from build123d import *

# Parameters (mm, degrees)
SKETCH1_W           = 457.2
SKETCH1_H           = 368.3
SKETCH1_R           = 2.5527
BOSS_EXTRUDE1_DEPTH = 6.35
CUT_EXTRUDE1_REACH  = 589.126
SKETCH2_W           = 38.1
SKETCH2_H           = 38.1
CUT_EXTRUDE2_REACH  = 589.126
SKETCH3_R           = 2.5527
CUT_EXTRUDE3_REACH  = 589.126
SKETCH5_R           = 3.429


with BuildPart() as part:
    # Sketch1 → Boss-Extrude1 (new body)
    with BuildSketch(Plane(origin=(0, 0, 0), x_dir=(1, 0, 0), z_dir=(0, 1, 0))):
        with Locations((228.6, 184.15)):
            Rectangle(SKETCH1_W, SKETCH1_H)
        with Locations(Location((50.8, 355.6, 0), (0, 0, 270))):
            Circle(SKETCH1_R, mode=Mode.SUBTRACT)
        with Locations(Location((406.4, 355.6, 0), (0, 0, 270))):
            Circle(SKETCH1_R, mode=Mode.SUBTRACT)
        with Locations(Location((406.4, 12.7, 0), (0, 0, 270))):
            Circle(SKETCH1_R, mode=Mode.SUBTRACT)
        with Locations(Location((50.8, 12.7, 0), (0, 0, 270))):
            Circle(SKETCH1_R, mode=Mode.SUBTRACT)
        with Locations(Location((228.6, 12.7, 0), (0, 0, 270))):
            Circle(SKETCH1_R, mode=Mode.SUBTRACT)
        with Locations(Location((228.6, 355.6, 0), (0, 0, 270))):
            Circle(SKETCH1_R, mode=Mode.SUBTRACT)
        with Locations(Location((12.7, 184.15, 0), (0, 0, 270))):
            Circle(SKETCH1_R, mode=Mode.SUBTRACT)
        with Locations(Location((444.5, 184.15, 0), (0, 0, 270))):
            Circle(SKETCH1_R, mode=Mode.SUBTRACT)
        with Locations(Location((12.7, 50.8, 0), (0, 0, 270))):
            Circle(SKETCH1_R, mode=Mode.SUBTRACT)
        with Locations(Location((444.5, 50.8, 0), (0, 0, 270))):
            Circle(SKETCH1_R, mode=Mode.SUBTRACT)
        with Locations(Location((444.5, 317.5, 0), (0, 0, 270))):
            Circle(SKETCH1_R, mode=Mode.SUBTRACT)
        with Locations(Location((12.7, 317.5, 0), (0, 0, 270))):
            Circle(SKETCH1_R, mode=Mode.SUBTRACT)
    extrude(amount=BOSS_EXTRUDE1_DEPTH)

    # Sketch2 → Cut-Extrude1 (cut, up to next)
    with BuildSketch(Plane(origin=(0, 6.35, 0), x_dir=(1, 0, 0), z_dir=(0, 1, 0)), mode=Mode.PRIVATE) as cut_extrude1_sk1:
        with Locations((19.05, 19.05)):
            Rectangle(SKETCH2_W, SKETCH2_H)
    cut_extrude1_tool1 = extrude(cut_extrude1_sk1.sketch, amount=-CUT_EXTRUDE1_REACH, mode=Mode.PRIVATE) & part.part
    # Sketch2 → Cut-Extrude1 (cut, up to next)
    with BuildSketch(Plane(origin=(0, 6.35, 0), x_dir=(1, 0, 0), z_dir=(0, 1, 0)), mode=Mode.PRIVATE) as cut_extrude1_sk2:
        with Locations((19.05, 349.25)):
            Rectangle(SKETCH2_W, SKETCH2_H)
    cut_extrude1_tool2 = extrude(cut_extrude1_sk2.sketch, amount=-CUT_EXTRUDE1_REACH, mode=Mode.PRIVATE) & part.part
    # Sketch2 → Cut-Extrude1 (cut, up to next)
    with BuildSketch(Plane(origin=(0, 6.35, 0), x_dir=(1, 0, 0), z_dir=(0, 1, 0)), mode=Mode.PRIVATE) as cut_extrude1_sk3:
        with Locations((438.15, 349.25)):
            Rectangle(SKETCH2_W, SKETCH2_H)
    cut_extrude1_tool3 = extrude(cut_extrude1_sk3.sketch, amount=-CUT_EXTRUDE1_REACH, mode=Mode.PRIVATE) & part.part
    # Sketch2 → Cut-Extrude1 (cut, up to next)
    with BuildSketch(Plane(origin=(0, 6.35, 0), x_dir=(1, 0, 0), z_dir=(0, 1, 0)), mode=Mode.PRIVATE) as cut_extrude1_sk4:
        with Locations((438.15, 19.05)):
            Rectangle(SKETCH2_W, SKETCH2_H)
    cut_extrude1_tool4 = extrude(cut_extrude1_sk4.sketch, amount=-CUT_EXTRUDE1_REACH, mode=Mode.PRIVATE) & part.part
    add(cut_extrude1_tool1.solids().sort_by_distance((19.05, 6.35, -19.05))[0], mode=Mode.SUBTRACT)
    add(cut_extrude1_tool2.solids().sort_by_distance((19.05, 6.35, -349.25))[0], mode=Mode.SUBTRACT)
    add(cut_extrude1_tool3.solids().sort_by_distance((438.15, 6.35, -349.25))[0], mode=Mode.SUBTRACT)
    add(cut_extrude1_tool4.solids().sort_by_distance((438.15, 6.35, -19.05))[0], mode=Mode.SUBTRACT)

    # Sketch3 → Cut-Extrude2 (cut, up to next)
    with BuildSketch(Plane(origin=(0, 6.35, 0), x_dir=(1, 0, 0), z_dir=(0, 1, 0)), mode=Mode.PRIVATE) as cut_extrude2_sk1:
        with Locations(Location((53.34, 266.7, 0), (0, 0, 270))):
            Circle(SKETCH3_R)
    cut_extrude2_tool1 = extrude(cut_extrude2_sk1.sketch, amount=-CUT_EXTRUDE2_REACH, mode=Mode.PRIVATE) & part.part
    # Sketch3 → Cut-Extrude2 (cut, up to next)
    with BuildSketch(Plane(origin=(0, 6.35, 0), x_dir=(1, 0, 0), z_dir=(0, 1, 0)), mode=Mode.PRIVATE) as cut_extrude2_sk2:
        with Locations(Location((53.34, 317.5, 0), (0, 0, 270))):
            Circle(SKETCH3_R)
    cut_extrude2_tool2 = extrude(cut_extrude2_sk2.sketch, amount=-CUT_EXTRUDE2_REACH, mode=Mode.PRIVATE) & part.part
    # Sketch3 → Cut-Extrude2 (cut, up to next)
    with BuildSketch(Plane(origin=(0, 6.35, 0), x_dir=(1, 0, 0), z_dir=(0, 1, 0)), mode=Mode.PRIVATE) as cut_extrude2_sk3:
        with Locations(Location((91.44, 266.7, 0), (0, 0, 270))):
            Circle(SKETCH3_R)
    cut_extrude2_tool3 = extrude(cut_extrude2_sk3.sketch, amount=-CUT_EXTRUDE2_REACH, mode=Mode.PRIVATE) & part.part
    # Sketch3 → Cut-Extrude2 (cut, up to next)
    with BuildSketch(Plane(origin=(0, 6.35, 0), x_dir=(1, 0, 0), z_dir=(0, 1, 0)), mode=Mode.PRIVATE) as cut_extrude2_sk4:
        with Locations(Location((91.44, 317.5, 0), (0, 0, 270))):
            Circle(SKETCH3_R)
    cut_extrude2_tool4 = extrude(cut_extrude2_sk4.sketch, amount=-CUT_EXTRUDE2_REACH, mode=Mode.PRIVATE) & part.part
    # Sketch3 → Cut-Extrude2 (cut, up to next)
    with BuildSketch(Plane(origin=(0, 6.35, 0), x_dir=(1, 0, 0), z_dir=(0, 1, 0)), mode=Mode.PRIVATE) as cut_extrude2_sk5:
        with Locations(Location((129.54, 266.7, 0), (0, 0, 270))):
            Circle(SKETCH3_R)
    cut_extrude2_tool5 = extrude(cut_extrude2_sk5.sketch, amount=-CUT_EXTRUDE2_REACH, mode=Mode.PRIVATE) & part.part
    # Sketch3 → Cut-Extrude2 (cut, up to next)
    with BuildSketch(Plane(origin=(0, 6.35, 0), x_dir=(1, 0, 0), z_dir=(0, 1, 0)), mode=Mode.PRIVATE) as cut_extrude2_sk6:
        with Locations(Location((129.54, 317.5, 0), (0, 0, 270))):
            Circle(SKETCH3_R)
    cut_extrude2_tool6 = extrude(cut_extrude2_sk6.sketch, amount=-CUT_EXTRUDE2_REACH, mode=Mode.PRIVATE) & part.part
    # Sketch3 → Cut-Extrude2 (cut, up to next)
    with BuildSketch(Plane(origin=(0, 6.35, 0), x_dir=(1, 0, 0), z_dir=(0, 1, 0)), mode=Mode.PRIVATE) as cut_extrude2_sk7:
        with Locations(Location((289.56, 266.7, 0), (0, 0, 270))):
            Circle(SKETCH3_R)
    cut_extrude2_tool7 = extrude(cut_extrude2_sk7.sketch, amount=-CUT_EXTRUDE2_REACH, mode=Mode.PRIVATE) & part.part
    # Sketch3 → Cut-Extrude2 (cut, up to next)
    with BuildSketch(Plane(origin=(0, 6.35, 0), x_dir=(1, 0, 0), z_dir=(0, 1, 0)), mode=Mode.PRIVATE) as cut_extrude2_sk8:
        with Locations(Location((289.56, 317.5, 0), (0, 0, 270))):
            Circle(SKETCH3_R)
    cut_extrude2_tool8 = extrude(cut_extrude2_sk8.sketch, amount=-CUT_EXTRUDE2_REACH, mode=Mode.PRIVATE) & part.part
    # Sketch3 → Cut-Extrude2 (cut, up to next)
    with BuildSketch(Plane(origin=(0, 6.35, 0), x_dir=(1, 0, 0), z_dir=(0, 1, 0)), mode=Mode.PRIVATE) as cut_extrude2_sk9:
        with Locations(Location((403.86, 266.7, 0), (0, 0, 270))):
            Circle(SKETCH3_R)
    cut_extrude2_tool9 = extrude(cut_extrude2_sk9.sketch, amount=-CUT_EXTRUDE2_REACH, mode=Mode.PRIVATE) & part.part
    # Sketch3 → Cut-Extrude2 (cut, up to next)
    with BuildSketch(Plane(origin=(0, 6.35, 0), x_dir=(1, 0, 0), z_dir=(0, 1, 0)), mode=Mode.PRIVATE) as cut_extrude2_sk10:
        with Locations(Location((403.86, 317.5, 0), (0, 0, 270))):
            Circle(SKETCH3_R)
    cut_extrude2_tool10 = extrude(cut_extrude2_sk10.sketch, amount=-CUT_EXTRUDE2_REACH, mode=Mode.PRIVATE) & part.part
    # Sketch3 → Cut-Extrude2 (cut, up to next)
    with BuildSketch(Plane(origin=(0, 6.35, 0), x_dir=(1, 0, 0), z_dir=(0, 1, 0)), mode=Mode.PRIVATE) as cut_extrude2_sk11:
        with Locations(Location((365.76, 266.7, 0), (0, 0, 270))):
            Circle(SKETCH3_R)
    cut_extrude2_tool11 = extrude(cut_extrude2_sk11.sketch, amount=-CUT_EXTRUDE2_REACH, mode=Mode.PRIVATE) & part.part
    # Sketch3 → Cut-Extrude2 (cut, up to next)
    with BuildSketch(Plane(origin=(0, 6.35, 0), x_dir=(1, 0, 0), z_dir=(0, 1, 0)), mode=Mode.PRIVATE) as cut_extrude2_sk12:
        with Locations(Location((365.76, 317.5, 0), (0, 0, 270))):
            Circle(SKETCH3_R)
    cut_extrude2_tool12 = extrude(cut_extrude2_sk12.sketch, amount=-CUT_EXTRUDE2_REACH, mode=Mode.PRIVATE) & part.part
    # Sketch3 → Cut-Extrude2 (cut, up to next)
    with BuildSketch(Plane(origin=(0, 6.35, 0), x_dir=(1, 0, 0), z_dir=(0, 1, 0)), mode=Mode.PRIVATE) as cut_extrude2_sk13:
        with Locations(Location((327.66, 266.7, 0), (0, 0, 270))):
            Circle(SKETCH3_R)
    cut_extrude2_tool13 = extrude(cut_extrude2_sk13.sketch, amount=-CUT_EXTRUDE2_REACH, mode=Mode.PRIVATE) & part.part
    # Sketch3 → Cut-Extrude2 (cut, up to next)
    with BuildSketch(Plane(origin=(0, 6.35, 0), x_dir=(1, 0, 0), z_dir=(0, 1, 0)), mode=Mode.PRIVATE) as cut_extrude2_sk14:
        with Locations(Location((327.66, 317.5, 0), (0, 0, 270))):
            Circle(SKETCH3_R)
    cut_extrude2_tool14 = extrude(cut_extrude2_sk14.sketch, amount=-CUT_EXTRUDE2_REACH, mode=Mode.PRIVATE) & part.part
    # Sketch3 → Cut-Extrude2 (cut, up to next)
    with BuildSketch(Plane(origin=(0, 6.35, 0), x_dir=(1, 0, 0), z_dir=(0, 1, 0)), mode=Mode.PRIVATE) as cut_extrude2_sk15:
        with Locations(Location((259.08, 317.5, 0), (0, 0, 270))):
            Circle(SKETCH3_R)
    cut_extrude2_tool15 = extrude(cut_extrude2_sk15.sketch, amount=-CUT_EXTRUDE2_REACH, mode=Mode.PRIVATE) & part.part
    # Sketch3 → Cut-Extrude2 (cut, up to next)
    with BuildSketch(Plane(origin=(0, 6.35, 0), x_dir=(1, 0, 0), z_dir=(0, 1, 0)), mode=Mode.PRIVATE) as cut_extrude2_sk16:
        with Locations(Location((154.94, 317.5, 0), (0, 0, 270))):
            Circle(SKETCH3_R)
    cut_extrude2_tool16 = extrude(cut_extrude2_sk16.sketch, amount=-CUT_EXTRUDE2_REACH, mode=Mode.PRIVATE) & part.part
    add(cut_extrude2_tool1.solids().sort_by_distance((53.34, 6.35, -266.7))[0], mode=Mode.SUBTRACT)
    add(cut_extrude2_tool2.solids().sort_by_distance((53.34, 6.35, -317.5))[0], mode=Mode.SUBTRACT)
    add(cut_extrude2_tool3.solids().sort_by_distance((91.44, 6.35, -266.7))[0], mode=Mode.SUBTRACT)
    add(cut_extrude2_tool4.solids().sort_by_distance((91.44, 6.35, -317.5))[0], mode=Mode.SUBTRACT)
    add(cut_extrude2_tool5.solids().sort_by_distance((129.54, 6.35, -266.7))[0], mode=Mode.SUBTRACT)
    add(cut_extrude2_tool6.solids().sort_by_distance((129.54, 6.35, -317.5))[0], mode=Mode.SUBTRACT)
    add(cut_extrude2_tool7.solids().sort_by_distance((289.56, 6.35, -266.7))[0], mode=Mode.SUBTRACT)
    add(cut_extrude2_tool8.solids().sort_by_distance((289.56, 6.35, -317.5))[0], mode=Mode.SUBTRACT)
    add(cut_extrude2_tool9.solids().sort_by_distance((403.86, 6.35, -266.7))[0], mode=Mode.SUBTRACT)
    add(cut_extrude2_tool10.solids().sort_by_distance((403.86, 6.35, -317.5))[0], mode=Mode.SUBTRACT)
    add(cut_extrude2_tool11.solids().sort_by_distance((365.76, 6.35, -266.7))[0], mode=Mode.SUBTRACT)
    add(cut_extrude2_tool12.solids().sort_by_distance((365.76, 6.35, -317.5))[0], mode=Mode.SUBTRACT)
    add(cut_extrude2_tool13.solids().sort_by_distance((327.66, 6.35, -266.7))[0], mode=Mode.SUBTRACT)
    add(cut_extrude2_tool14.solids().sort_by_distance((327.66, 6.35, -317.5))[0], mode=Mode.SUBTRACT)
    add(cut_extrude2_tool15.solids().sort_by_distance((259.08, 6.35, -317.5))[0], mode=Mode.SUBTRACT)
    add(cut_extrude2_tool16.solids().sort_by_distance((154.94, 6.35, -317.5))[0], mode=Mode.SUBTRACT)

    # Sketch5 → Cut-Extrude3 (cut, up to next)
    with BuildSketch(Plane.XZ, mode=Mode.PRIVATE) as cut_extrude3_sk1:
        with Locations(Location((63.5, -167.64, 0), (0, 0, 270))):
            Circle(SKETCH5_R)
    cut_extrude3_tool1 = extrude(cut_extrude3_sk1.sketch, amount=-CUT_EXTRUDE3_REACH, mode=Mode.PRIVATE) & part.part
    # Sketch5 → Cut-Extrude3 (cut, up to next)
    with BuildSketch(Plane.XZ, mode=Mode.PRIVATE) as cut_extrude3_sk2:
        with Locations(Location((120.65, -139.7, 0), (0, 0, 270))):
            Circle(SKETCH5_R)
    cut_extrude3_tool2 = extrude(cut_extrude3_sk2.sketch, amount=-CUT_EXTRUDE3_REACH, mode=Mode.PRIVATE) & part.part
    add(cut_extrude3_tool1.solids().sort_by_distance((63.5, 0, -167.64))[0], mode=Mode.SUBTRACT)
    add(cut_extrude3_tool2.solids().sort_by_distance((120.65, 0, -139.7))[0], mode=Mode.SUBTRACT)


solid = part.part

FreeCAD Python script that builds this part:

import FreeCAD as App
import Part
import Sketcher
Q = App.Units.Quantity

doc = App.newDocument("Part")
params = doc.addObject("Spreadsheet::Sheet", "Params")
for row, (alias, value) in enumerate([
    ("sketch1_width", "18 in"),
    ("sketch1_diameter", "0.201 in"),
    ("sketch1_height", "14.5 in"),
    ("pad1_length", "0.25 in"),
    ("sketch2_width", "1.5 in"),
    ("sketch3_width", "1.5 in"),
    ("sketch4_width", "1.5 in"),
    ("sketch5_width", "1.5 in"),
    ("sketch6_diameter", "0.201 in"),
    ("sketch7_diameter", "0.201 in"),
    ("sketch8_diameter", "0.201 in"),
    ("sketch9_diameter", "0.201 in"),
    ("sketch10_diameter", "0.201 in"),
    ("sketch11_diameter", "0.201 in"),
    ("sketch12_diameter", "0.201 in"),
    ("sketch13_diameter", "0.201 in"),
    ("sketch14_diameter", "0.201 in"),
    ("sketch15_diameter", "0.201 in"),
    ("sketch16_diameter", "0.201 in"),
    ("sketch17_diameter", "0.201 in"),
    ("sketch18_diameter", "0.201 in"),
    ("sketch19_diameter", "0.201 in"),
    ("sketch20_diameter", "0.201 in"),
    ("sketch21_diameter", "0.201 in"),
    ("sketch22_diameter", "0.27 in"),
    ("sketch23_diameter", "0.27 in"),
], start=1):
    params.set(f"A{row}", alias)
    params.set(f"B{row}", "=" + value)
    params.setAlias(f"B{row}", alias)

body = doc.addObject("PartDesign::Body", "Body")

sketch1 = body.newObject("Sketcher::SketchObject", "Sketch")
sketch1.AttachmentSupport = (doc.getObject("XZ_Plane"), [""])
sketch1.MapMode = "FlatFace"
sketch1.addGeometry(Part.LineSegment(App.Vector(0, -368.3, 0), App.Vector(0, 0, 0)), False)
sketch1.addGeometry(Part.LineSegment(App.Vector(0, 0, 0), App.Vector(457.2, 0, 0)), False)
sketch1.addGeometry(Part.LineSegment(App.Vector(457.2, 0, 0), App.Vector(457.2, -368.3, 0)), False)
sketch1.addGeometry(Part.LineSegment(App.Vector(457.2, -368.3, 0), App.Vector(0, -368.3, 0)), False)
sketch1.addGeometry(Part.Circle(App.Vector(50.8, -12.7, 0), App.Vector(0, 0, 1), 2.6), False)
sketch1.addGeometry(Part.Circle(App.Vector(12.7, -50.8, 0), App.Vector(0, 0, 1), 2.6), False)
sketch1.addGeometry(Part.Circle(App.Vector(12.7, -184.2, 0), App.Vector(0, 0, 1), 2.6), False)
sketch1.addGeometry(Part.Circle(App.Vector(228.6, -12.7, 0), App.Vector(0, 0, 1), 2.6), False)
sketch1.addGeometry(Part.Circle(App.Vector(406.4, -12.7, 0), App.Vector(0, 0, 1), 2.6), False)
sketch1.addGeometry(Part.Circle(App.Vector(444.5, -50.8, 0), App.Vector(0, 0, 1), 2.6), False)
sketch1.addGeometry(Part.Circle(App.Vector(444.5, -184.2, 0), App.Vector(0, 0, 1), 2.6), False)
sketch1.addGeometry(Part.Circle(App.Vector(12.7, -317.5, 0), App.Vector(0, 0, 1), 2.6), False)
sketch1.addGeometry(Part.Circle(App.Vector(50.8, -355.6, 0), App.Vector(0, 0, 1), 2.6), False)
sketch1.addGeometry(Part.Circle(App.Vector(228.6, -355.6, 0), App.Vector(0, 0, 1), 2.6), False)
sketch1.addGeometry(Part.Circle(App.Vector(444.5, -317.5, 0), App.Vector(0, 0, 1), 2.6), False)
sketch1.addGeometry(Part.Circle(App.Vector(406.4, -355.6, 0), App.Vector(0, 0, 1), 2.6), False)
sketch1.addConstraint(Sketcher.Constraint("Coincident", 0, 2, 1, 1))
sketch1.addConstraint(Sketcher.Constraint("Coincident", 1, 2, 2, 1))
sketch1.addConstraint(Sketcher.Constraint("Coincident", 2, 2, 3, 1))
sketch1.addConstraint(Sketcher.Constraint("Coincident", 3, 2, 0, 1))
sketch1.addConstraint(Sketcher.Constraint("Vertical", 0))
sketch1.addConstraint(Sketcher.Constraint("Horizontal", 1))
sketch1.addConstraint(Sketcher.Constraint("Vertical", 2))
sketch1.addConstraint(Sketcher.Constraint("Horizontal", 3))
sketch1.addConstraint(Sketcher.Constraint("Coincident", 0, 2, -1, 1))
sketch1.addConstraint(Sketcher.Constraint("Equal", 4, 5))
sketch1.addConstraint(Sketcher.Constraint("Equal", 5, 6))
sketch1.addConstraint(Sketcher.Constraint("Equal", 6, 7))
sketch1.addConstraint(Sketcher.Constraint("Equal", 7, 8))
sketch1.addConstraint(Sketcher.Constraint("Equal", 8, 9))
sketch1.addConstraint(Sketcher.Constraint("Equal", 9, 10))
sketch1.addConstraint(Sketcher.Constraint("Equal", 10, 11))
sketch1.addConstraint(Sketcher.Constraint("Equal", 11, 12))
sketch1.addConstraint(Sketcher.Constraint("Equal", 12, 13))
sketch1.addConstraint(Sketcher.Constraint("Equal", 13, 14))
sketch1.addConstraint(Sketcher.Constraint("Equal", 14, 15))
sketch1.addConstraint(Sketcher.Constraint("Horizontal", 4, 3, 7, 3))
sketch1.addConstraint(Sketcher.Constraint("Horizontal", 7, 3, 8, 3))
sketch1.addConstraint(Sketcher.Constraint("Horizontal", 5, 3, 9, 3))
sketch1.addConstraint(Sketcher.Constraint("Horizontal", 6, 3, 10, 3))
sketch1.addConstraint(Sketcher.Constraint("Horizontal", 12, 3, 13, 3))
sketch1.addConstraint(Sketcher.Constraint("Horizontal", 11, 3, 14, 3))
sketch1.addConstraint(Sketcher.Constraint("Horizontal", 13, 3, 15, 3))
sketch1.addConstraint(Sketcher.Constraint("Vertical", 5, 3, 6, 3))
sketch1.addConstraint(Sketcher.Constraint("Vertical", 9, 3, 10, 3))
sketch1.addConstraint(Sketcher.Constraint("Vertical", 6, 3, 11, 3))
sketch1.addConstraint(Sketcher.Constraint("Vertical", 4, 3, 12, 3))
sketch1.addConstraint(Sketcher.Constraint("Vertical", 7, 3, 13, 3))
sketch1.addConstraint(Sketcher.Constraint("Vertical", 10, 3, 14, 3))
sketch1.addConstraint(Sketcher.Constraint("Vertical", 8, 3, 15, 3))
sketch1.addConstraint(Sketcher.Constraint("DistanceX", 1, 1, 1, 2, Q("18 in")))
sketch1.addConstraint(Sketcher.Constraint("Diameter", 4, Q("0.201 in")))
sketch1.addConstraint(Sketcher.Constraint("DistanceY", 0, 1, 0, 2, Q("14.5 in")))
sketch1.addConstraint(Sketcher.Constraint("DistanceX", -1, 1, 4, 3, Q("2 in")))
sketch1.addConstraint(Sketcher.Constraint("DistanceY", 5, 3, -1, 1, Q("2 in")))
sketch1.addConstraint(Sketcher.Constraint("DistanceX", -1, 1, 7, 3, Q("9 in")))
sketch1.addConstraint(Sketcher.Constraint("DistanceX", -1, 1, 8, 3, Q("16 in")))
sketch1.addConstraint(Sketcher.Constraint("DistanceY", 12, 3, -1, 1, Q("14 in")))
sketch1.addConstraint(Sketcher.Constraint("DistanceX", 5, 3, 9, 3, Q("17 in")))
sketch1.addConstraint(Sketcher.Constraint("DistanceY", 11, 3, 4, 3, Q("12 in")))
sketch1.addConstraint(Sketcher.Constraint("DistanceY", 2, 2, 14, 3, Q("2 in")))
sketch1.addConstraint(Sketcher.Constraint("DistanceX", -1, 1, 5, 3, Q("0.5 in")))
sketch1.addConstraint(Sketcher.Constraint("DistanceY", 6, 3, -1, 1, Q("7.25 in")))
sketch1.setExpression("Constraints[34]", "Params.sketch1_width")
sketch1.setExpression("Constraints[35]", "Params.sketch1_diameter")
sketch1.setExpression("Constraints[36]", "Params.sketch1_height")
pad1 = body.newObject("PartDesign::Pad", "Pad")
pad1.Profile = sketch1
pad1.setExpression("Length", "Params.pad1_length")
pad1.Reversed = True

sketch2 = body.newObject("Sketcher::SketchObject", "Sketch001")
sketch2.AttachmentSupport = (doc.getObject("XZ_Plane"), [""])
sketch2.MapMode = "FlatFace"
sketch2.AttachmentOffset = App.Placement(App.Vector(0, 0, -0.25 * 25.4), App.Rotation())
sketch2.addGeometry(Part.LineSegment(App.Vector(0, -38, 0), App.Vector(0, 0, 0)), False)
sketch2.addGeometry(Part.LineSegment(App.Vector(0, 0, 0), App.Vector(38, 0, 0)), False)
sketch2.addGeometry(Part.LineSegment(App.Vector(38, 0, 0), App.Vector(38, -38, 0)), False)
sketch2.addGeometry(Part.LineSegment(App.Vector(38, -38, 0), App.Vector(0, -38, 0)), False)
sketch2.addConstraint(Sketcher.Constraint("Coincident", 0, 2, 1, 1))
sketch2.addConstraint(Sketcher.Constraint("Coincident", 1, 2, 2, 1))
sketch2.addConstraint(Sketcher.Constraint("Coincident", 2, 2, 3, 1))
sketch2.addConstraint(Sketcher.Constraint("Coincident", 3, 2, 0, 1))
sketch2.addConstraint(Sketcher.Constraint("Vertical", 0))
sketch2.addConstraint(Sketcher.Constraint("Horizontal", 1))
sketch2.addConstraint(Sketcher.Constraint("Vertical", 2))
sketch2.addConstraint(Sketcher.Constraint("Horizontal", 3))
sketch2.addConstraint(Sketcher.Constraint("Coincident", 0, 2, -1, 1))
sketch2.addConstraint(Sketcher.Constraint("Equal", 3, 0))
sketch2.addConstraint(Sketcher.Constraint("DistanceX", 1, 1, 1, 2, Q("1.5 in")))
sketch2.setExpression("Constraints[10]", "Params.sketch2_width")
pocket1 = body.newObject("PartDesign::Pocket", "Pocket")
pocket1.Profile = sketch2
pocket1.Type = "UpToFirst"
pocket1.Reversed = True

sketch3 = body.newObject("Sketcher::SketchObject", "Sketch002")
sketch3.AttachmentSupport = (doc.getObject("XZ_Plane"), [""])
sketch3.MapMode = "FlatFace"
sketch3.AttachmentOffset = App.Placement(App.Vector(0, 0, -0.25 * 25.4), App.Rotation())
sketch3.addGeometry(Part.LineSegment(App.Vector(0, -368, 0), App.Vector(0, -330, 0)), False)
sketch3.addGeometry(Part.LineSegment(App.Vector(0, -330, 0), App.Vector(38, -330, 0)), False)
sketch3.addGeometry(Part.LineSegment(App.Vector(38, -330, 0), App.Vector(38, -368, 0)), False)
sketch3.addGeometry(Part.LineSegment(App.Vector(38, -368, 0), App.Vector(0, -368, 0)), False)
sketch3.addConstraint(Sketcher.Constraint("Coincident", 0, 2, 1, 1))
sketch3.addConstraint(Sketcher.Constraint("Coincident", 1, 2, 2, 1))
sketch3.addConstraint(Sketcher.Constraint("Coincident", 2, 2, 3, 1))
sketch3.addConstraint(Sketcher.Constraint("Coincident", 3, 2, 0, 1))
sketch3.addConstraint(Sketcher.Constraint("Vertical", 0))
sketch3.addConstraint(Sketcher.Constraint("Horizontal", 1))
sketch3.addConstraint(Sketcher.Constraint("Vertical", 2))
sketch3.addConstraint(Sketcher.Constraint("Horizontal", 3))
sketch3.addConstraint(Sketcher.Constraint("PointOnObject", 0, 2, -2))
sketch3.addConstraint(Sketcher.Constraint("Equal", 3, 0))
sketch3.addConstraint(Sketcher.Constraint("DistanceX", 1, 1, 1, 2, Q("1.5 in")))
sketch3.addConstraint(Sketcher.Constraint("DistanceY", 0, 2, -1, 1, Q("13 in")))
sketch3.setExpression("Constraints[10]", "Params.sketch3_width")
pocket2 = body.newObject("PartDesign::Pocket", "Pocket001")
pocket2.Profile = sketch3
pocket2.Type = "UpToFirst"
pocket2.Reversed = True

sketch4 = body.newObject("Sketcher::SketchObject", "Sketch003")
sketch4.AttachmentSupport = (doc.getObject("XZ_Plane"), [""])
sketch4.MapMode = "FlatFace"
sketch4.AttachmentOffset = App.Placement(App.Vector(0, 0, -0.25 * 25.4), App.Rotation())
sketch4.addGeometry(Part.LineSegment(App.Vector(419, -368, 0), App.Vector(419, -330, 0)), False)
sketch4.addGeometry(Part.LineSegment(App.Vector(419, -330, 0), App.Vector(457, -330, 0)), False)
sketch4.addGeometry(Part.LineSegment(App.Vector(457, -330, 0), App.Vector(457, -368, 0)), False)
sketch4.addGeometry(Part.LineSegment(App.Vector(457, -368, 0), App.Vector(419, -368, 0)), False)
sketch4.addConstraint(Sketcher.Constraint("Coincident", 0, 2, 1, 1))
sketch4.addConstraint(Sketcher.Constraint("Coincident", 1, 2, 2, 1))
sketch4.addConstraint(Sketcher.Constraint("Coincident", 2, 2, 3, 1))
sketch4.addConstraint(Sketcher.Constraint("Coincident", 3, 2, 0, 1))
sketch4.addConstraint(Sketcher.Constraint("Vertical", 0))
sketch4.addConstraint(Sketcher.Constraint("Horizontal", 1))
sketch4.addConstraint(Sketcher.Constraint("Vertical", 2))
sketch4.addConstraint(Sketcher.Constraint("Horizontal", 3))
sketch4.addConstraint(Sketcher.Constraint("Equal", 3, 0))
sketch4.addConstraint(Sketcher.Constraint("DistanceX", 1, 1, 1, 2, Q("1.5 in")))
sketch4.addConstraint(Sketcher.Constraint("DistanceY", 0, 2, -1, 1, Q("13 in")))
sketch4.addConstraint(Sketcher.Constraint("DistanceX", -1, 1, 1, 2, Q("18 in")))
sketch4.setExpression("Constraints[9]", "Params.sketch4_width")
pocket3 = body.newObject("PartDesign::Pocket", "Pocket002")
pocket3.Profile = sketch4
pocket3.Type = "UpToFirst"
pocket3.Reversed = True

sketch5 = body.newObject("Sketcher::SketchObject", "Sketch004")
sketch5.AttachmentSupport = (doc.getObject("XZ_Plane"), [""])
sketch5.MapMode = "FlatFace"
sketch5.AttachmentOffset = App.Placement(App.Vector(0, 0, -0.25 * 25.4), App.Rotation())
sketch5.addGeometry(Part.LineSegment(App.Vector(419, -38, 0), App.Vector(419, 0, 0)), False)
sketch5.addGeometry(Part.LineSegment(App.Vector(419, 0, 0), App.Vector(457, 0, 0)), False)
sketch5.addGeometry(Part.LineSegment(App.Vector(457, 0, 0), App.Vector(457, -38, 0)), False)
sketch5.addGeometry(Part.LineSegment(App.Vector(457, -38, 0), App.Vector(419, -38, 0)), False)
sketch5.addConstraint(Sketcher.Constraint("Coincident", 0, 2, 1, 1))
sketch5.addConstraint(Sketcher.Constraint("Coincident", 1, 2, 2, 1))
sketch5.addConstraint(Sketcher.Constraint("Coincident", 2, 2, 3, 1))
sketch5.addConstraint(Sketcher.Constraint("Coincident", 3, 2, 0, 1))
sketch5.addConstraint(Sketcher.Constraint("Vertical", 0))
sketch5.addConstraint(Sketcher.Constraint("Horizontal", 1))
sketch5.addConstraint(Sketcher.Constraint("Vertical", 2))
sketch5.addConstraint(Sketcher.Constraint("Horizontal", 3))
sketch5.addConstraint(Sketcher.Constraint("PointOnObject", 0, 2, -1))
sketch5.addConstraint(Sketcher.Constraint("Equal", 3, 0))
sketch5.addConstraint(Sketcher.Constraint("DistanceX", 1, 1, 1, 2, Q("1.5 in")))
sketch5.addConstraint(Sketcher.Constraint("DistanceX", -1, 1, 1, 2, Q("18 in")))
sketch5.setExpression("Constraints[10]", "Params.sketch5_width")
pocket4 = body.newObject("PartDesign::Pocket", "Pocket003")
pocket4.Profile = sketch5
pocket4.Type = "UpToFirst"
pocket4.Reversed = True

sketch6 = body.newObject("Sketcher::SketchObject", "Sketch005")
sketch6.AttachmentSupport = (doc.getObject("XZ_Plane"), [""])
sketch6.MapMode = "FlatFace"
sketch6.AttachmentOffset = App.Placement(App.Vector(0, 0, -0.25 * 25.4), App.Rotation())
sketch6.addGeometry(Part.Circle(App.Vector(53.3, -266.7, 0), App.Vector(0, 0, 1), 2.6), False)
sketch6.addConstraint(Sketcher.Constraint("Diameter", 0, Q("0.201 in")))
sketch6.addConstraint(Sketcher.Constraint("DistanceX", -1, 1, 0, 3, Q("2.1 in")))
sketch6.addConstraint(Sketcher.Constraint("DistanceY", 0, 3, -1, 1, Q("10.5 in")))
sketch6.setExpression("Constraints[0]", "Params.sketch6_diameter")
pocket5 = body.newObject("PartDesign::Pocket", "Pocket004")
pocket5.Profile = sketch6
pocket5.Type = "UpToFirst"
pocket5.Reversed = True

sketch7 = body.newObject("Sketcher::SketchObject", "Sketch006")
sketch7.AttachmentSupport = (doc.getObject("XZ_Plane"), [""])
sketch7.MapMode = "FlatFace"
sketch7.AttachmentOffset = App.Placement(App.Vector(0, 0, -0.25 * 25.4), App.Rotation())
sketch7.addGeometry(Part.Circle(App.Vector(53.3, -317.5, 0), App.Vector(0, 0, 1), 2.6), False)
sketch7.addConstraint(Sketcher.Constraint("Diameter", 0, Q("0.201 in")))
sketch7.addConstraint(Sketcher.Constraint("DistanceX", -1, 1, 0, 3, Q("2.1 in")))
sketch7.addConstraint(Sketcher.Constraint("DistanceY", 0, 3, -1, 1, Q("12.5 in")))
sketch7.setExpression("Constraints[0]", "Params.sketch7_diameter")
pocket6 = body.newObject("PartDesign::Pocket", "Pocket005")
pocket6.Profile = sketch7
pocket6.Type = "UpToFirst"
pocket6.Reversed = True

sketch8 = body.newObject("Sketcher::SketchObject", "Sketch007")
sketch8.AttachmentSupport = (doc.getObject("XZ_Plane"), [""])
sketch8.MapMode = "FlatFace"
sketch8.AttachmentOffset = App.Placement(App.Vector(0, 0, -0.25 * 25.4), App.Rotation())
sketch8.addGeometry(Part.Circle(App.Vector(91.4, -266.7, 0), App.Vector(0, 0, 1), 2.6), False)
sketch8.addConstraint(Sketcher.Constraint("Diameter", 0, Q("0.201 in")))
sketch8.addConstraint(Sketcher.Constraint("DistanceX", -1, 1, 0, 3, Q("3.6 in")))
sketch8.addConstraint(Sketcher.Constraint("DistanceY", 0, 3, -1, 1, Q("10.5 in")))
sketch8.setExpression("Constraints[0]", "Params.sketch8_diameter")
pocket7 = body.newObject("PartDesign::Pocket", "Pocket006")
pocket7.Profile = sketch8
pocket7.Type = "UpToFirst"
pocket7.Reversed = True

sketch9 = body.newObject("Sketcher::SketchObject", "Sketch008")
sketch9.AttachmentSupport = (doc.getObject("XZ_Plane"), [""])
sketch9.MapMode = "FlatFace"
sketch9.AttachmentOffset = App.Placement(App.Vector(0, 0, -0.25 * 25.4), App.Rotation())
sketch9.addGeometry(Part.Circle(App.Vector(91.4, -317.5, 0), App.Vector(0, 0, 1), 2.6), False)
sketch9.addConstraint(Sketcher.Constraint("Diameter", 0, Q("0.201 in")))
sketch9.addConstraint(Sketcher.Constraint("DistanceX", -1, 1, 0, 3, Q("3.6 in")))
sketch9.addConstraint(Sketcher.Constraint("DistanceY", 0, 3, -1, 1, Q("12.5 in")))
sketch9.setExpression("Constraints[0]", "Params.sketch9_diameter")
pocket8 = body.newObject("PartDesign::Pocket", "Pocket007")
pocket8.Profile = sketch9
pocket8.Type = "UpToFirst"
pocket8.Reversed = True

sketch10 = body.newObject("Sketcher::SketchObject", "Sketch009")
sketch10.AttachmentSupport = (doc.getObject("XZ_Plane"), [""])
sketch10.MapMode = "FlatFace"
sketch10.AttachmentOffset = App.Placement(App.Vector(0, 0, -0.25 * 25.4), App.Rotation())
sketch10.addGeometry(Part.Circle(App.Vector(129.5, -266.7, 0), App.Vector(0, 0, 1), 2.6), False)
sketch10.addConstraint(Sketcher.Constraint("Diameter", 0, Q("0.201 in")))
sketch10.addConstraint(Sketcher.Constraint("DistanceX", -1, 1, 0, 3, Q("5.1 in")))
sketch10.addConstraint(Sketcher.Constraint("DistanceY", 0, 3, -1, 1, Q("10.5 in")))
sketch10.setExpression("Constraints[0]", "Params.sketch10_diameter")
pocket9 = body.newObject("PartDesign::Pocket", "Pocket008")
pocket9.Profile = sketch10
pocket9.Type = "UpToFirst"
pocket9.Reversed = True

sketch11 = body.newObject("Sketcher::SketchObject", "Sketch010")
sketch11.AttachmentSupport = (doc.getObject("XZ_Plane"), [""])
sketch11.MapMode = "FlatFace"
sketch11.AttachmentOffset = App.Placement(App.Vector(0, 0, -0.25 * 25.4), App.Rotation())
sketch11.addGeometry(Part.Circle(App.Vector(129.5, -317.5, 0), App.Vector(0, 0, 1), 2.6), False)
sketch11.addConstraint(Sketcher.Constraint("Diameter", 0, Q("0.201 in")))
sketch11.addConstraint(Sketcher.Constraint("DistanceX", -1, 1, 0, 3, Q("5.1 in")))
sketch11.addConstraint(Sketcher.Constraint("DistanceY", 0, 3, -1, 1, Q("12.5 in")))
sketch11.setExpression("Constraints[0]", "Params.sketch11_diameter")
pocket10 = body.newObject("PartDesign::Pocket", "Pocket009")
pocket10.Profile = sketch11
pocket10.Type = "UpToFirst"
pocket10.Reversed = True

sketch12 = body.newObject("Sketcher::SketchObject", "Sketch011")
sketch12.AttachmentSupport = (doc.getObject("XZ_Plane"), [""])
sketch12.MapMode = "FlatFace"
sketch12.AttachmentOffset = App.Placement(App.Vector(0, 0, -0.25 * 25.4), App.Rotation())
sketch12.addGeometry(Part.Circle(App.Vector(289.6, -266.7, 0), App.Vector(0, 0, 1), 2.6), False)
sketch12.addConstraint(Sketcher.Constraint("Diameter", 0, Q("0.201 in")))
sketch12.addConstraint(Sketcher.Constraint("DistanceX", -1, 1, 0, 3, Q("11.4 in")))
sketch12.addConstraint(Sketcher.Constraint("DistanceY", 0, 3, -1, 1, Q("10.5 in")))
sketch12.setExpression("Constraints[0]", "Params.sketch12_diameter")
pocket11 = body.newObject("PartDesign::Pocket", "Pocket010")
pocket11.Profile = sketch12
pocket11.Type = "UpToFirst"
pocket11.Reversed = True

sketch13 = body.newObject("Sketcher::SketchObject", "Sketch012")
sketch13.AttachmentSupport = (doc.getObject("XZ_Plane"), [""])
sketch13.MapMode = "FlatFace"
sketch13.AttachmentOffset = App.Placement(App.Vector(0, 0, -0.25 * 25.4), App.Rotation())
sketch13.addGeometry(Part.Circle(App.Vector(289.6, -317.5, 0), App.Vector(0, 0, 1), 2.6), False)
sketch13.addConstraint(Sketcher.Constraint("Diameter", 0, Q("0.201 in")))
sketch13.addConstraint(Sketcher.Constraint("DistanceX", -1, 1, 0, 3, Q("11.4 in")))
sketch13.addConstraint(Sketcher.Constraint("DistanceY", 0, 3, -1, 1, Q("12.5 in")))
sketch13.setExpression("Constraints[0]", "Params.sketch13_diameter")
pocket12 = body.newObject("PartDesign::Pocket", "Pocket011")
pocket12.Profile = sketch13
pocket12.Type = "UpToFirst"
pocket12.Reversed = True

sketch14 = body.newObject("Sketcher::SketchObject", "Sketch013")
sketch14.AttachmentSupport = (doc.getObject("XZ_Plane"), [""])
sketch14.MapMode = "FlatFace"
sketch14.AttachmentOffset = App.Placement(App.Vector(0, 0, -0.25 * 25.4), App.Rotation())
sketch14.addGeometry(Part.Circle(App.Vector(403.9, -266.7, 0), App.Vector(0, 0, 1), 2.6), False)
sketch14.addConstraint(Sketcher.Constraint("Diameter", 0, Q("0.201 in")))
sketch14.addConstraint(Sketcher.Constraint("DistanceX", -1, 1, 0, 3, Q("15.9 in")))
sketch14.addConstraint(Sketcher.Constraint("DistanceY", 0, 3, -1, 1, Q("10.5 in")))
sketch14.setExpression("Constraints[0]", "Params.sketch14_diameter")
pocket13 = body.newObject("PartDesign::Pocket", "Pocket012")
pocket13.Profile = sketch14
pocket13.Type = "UpToFirst"
pocket13.Reversed = True

sketch15 = body.newObject("Sketcher::SketchObject", "Sketch014")
sketch15.AttachmentSupport = (doc.getObject("XZ_Plane"), [""])
sketch15.MapMode = "FlatFace"
sketch15.AttachmentOffset = App.Placement(App.Vector(0, 0, -0.25 * 25.4), App.Rotation())
sketch15.addGeometry(Part.Circle(App.Vector(403.9, -317.5, 0), App.Vector(0, 0, 1), 2.6), False)
sketch15.addConstraint(Sketcher.Constraint("Diameter", 0, Q("0.201 in")))
sketch15.addConstraint(Sketcher.Constraint("DistanceX", -1, 1, 0, 3, Q("15.9 in")))
sketch15.addConstraint(Sketcher.Constraint("DistanceY", 0, 3, -1, 1, Q("12.5 in")))
sketch15.setExpression("Constraints[0]", "Params.sketch15_diameter")
pocket14 = body.newObject("PartDesign::Pocket", "Pocket013")
pocket14.Profile = sketch15
pocket14.Type = "UpToFirst"
pocket14.Reversed = True

sketch16 = body.newObject("Sketcher::SketchObject", "Sketch015")
sketch16.AttachmentSupport = (doc.getObject("XZ_Plane"), [""])
sketch16.MapMode = "FlatFace"
sketch16.AttachmentOffset = App.Placement(App.Vector(0, 0, -0.25 * 25.4), App.Rotation())
sketch16.addGeometry(Part.Circle(App.Vector(365.8, -266.7, 0), App.Vector(0, 0, 1), 2.6), False)
sketch16.addConstraint(Sketcher.Constraint("Diameter", 0, Q("0.201 in")))
sketch16.addConstraint(Sketcher.Constraint("DistanceX", -1, 1, 0, 3, Q("14.4 in")))
sketch16.addConstraint(Sketcher.Constraint("DistanceY", 0, 3, -1, 1, Q("10.5 in")))
sketch16.setExpression("Constraints[0]", "Params.sketch16_diameter")
pocket15 = body.newObject("PartDesign::Pocket", "Pocket014")
pocket15.Profile = sketch16
pocket15.Type = "UpToFirst"
pocket15.Reversed = True

sketch17 = body.newObject("Sketcher::SketchObject", "Sketch016")
sketch17.AttachmentSupport = (doc.getObject("XZ_Plane"), [""])
sketch17.MapMode = "FlatFace"
sketch17.AttachmentOffset = App.Placement(App.Vector(0, 0, -0.25 * 25.4), App.Rotation())
sketch17.addGeometry(Part.Circle(App.Vector(365.8, -317.5, 0), App.Vector(0, 0, 1), 2.6), False)
sketch17.addConstraint(Sketcher.Constraint("Diameter", 0, Q("0.201 in")))
sketch17.addConstraint(Sketcher.Constraint("DistanceX", -1, 1, 0, 3, Q("14.4 in")))
sketch17.addConstraint(Sketcher.Constraint("DistanceY", 0, 3, -1, 1, Q("12.5 in")))
sketch17.setExpression("Constraints[0]", "Params.sketch17_diameter")
pocket16 = body.newObject("PartDesign::Pocket", "Pocket015")
pocket16.Profile = sketch17
pocket16.Type = "UpToFirst"
pocket16.Reversed = True

sketch18 = body.newObject("Sketcher::SketchObject", "Sketch017")
sketch18.AttachmentSupport = (doc.getObject("XZ_Plane"), [""])
sketch18.MapMode = "FlatFace"
sketch18.AttachmentOffset = App.Placement(App.Vector(0, 0, -0.25 * 25.4), App.Rotation())
sketch18.addGeometry(Part.Circle(App.Vector(327.7, -266.7, 0), App.Vector(0, 0, 1), 2.6), False)
sketch18.addConstraint(Sketcher.Constraint("Diameter", 0, Q("0.201 in")))
sketch18.addConstraint(Sketcher.Constraint("DistanceX", -1, 1, 0, 3, Q("12.9 in")))
sketch18.addConstraint(Sketcher.Constraint("DistanceY", 0, 3, -1, 1, Q("10.5 in")))
sketch18.setExpression("Constraints[0]", "Params.sketch18_diameter")
pocket17 = body.newObject("PartDesign::Pocket", "Pocket016")
pocket17.Profile = sketch18
pocket17.Type = "UpToFirst"
pocket17.Reversed = True

sketch19 = body.newObject("Sketcher::SketchObject", "Sketch018")
sketch19.AttachmentSupport = (doc.getObject("XZ_Plane"), [""])
sketch19.MapMode = "FlatFace"
sketch19.AttachmentOffset = App.Placement(App.Vector(0, 0, -0.25 * 25.4), App.Rotation())
sketch19.addGeometry(Part.Circle(App.Vector(327.7, -317.5, 0), App.Vector(0, 0, 1), 2.6), False)
sketch19.addConstraint(Sketcher.Constraint("Diameter", 0, Q("0.201 in")))
sketch19.addConstraint(Sketcher.Constraint("DistanceX", -1, 1, 0, 3, Q("12.9 in")))
sketch19.addConstraint(Sketcher.Constraint("DistanceY", 0, 3, -1, 1, Q("12.5 in")))
sketch19.setExpression("Constraints[0]", "Params.sketch19_diameter")
pocket18 = body.newObject("PartDesign::Pocket", "Pocket017")
pocket18.Profile = sketch19
pocket18.Type = "UpToFirst"
pocket18.Reversed = True

sketch20 = body.newObject("Sketcher::SketchObject", "Sketch019")
sketch20.AttachmentSupport = (doc.getObject("XZ_Plane"), [""])
sketch20.MapMode = "FlatFace"
sketch20.AttachmentOffset = App.Placement(App.Vector(0, 0, -0.25 * 25.4), App.Rotation())
sketch20.addGeometry(Part.Circle(App.Vector(259.1, -317.5, 0), App.Vector(0, 0, 1), 2.6), False)
sketch20.addConstraint(Sketcher.Constraint("Diameter", 0, Q("0.201 in")))
sketch20.addConstraint(Sketcher.Constraint("DistanceX", -1, 1, 0, 3, Q("10.2 in")))
sketch20.addConstraint(Sketcher.Constraint("DistanceY", 0, 3, -1, 1, Q("12.5 in")))
sketch20.setExpression("Constraints[0]", "Params.sketch20_diameter")
pocket19 = body.newObject("PartDesign::Pocket", "Pocket018")
pocket19.Profile = sketch20
pocket19.Type = "UpToFirst"
pocket19.Reversed = True

sketch21 = body.newObject("Sketcher::SketchObject", "Sketch020")
sketch21.AttachmentSupport = (doc.getObject("XZ_Plane"), [""])
sketch21.MapMode = "FlatFace"
sketch21.AttachmentOffset = App.Placement(App.Vector(0, 0, -0.25 * 25.4), App.Rotation())
sketch21.addGeometry(Part.Circle(App.Vector(154.9, -317.5, 0), App.Vector(0, 0, 1), 2.6), False)
sketch21.addConstraint(Sketcher.Constraint("Diameter", 0, Q("0.201 in")))
sketch21.addConstraint(Sketcher.Constraint("DistanceX", -1, 1, 0, 3, Q("6.1 in")))
sketch21.addConstraint(Sketcher.Constraint("DistanceY", 0, 3, -1, 1, Q("12.5 in")))
sketch21.setExpression("Constraints[0]", "Params.sketch21_diameter")
pocket20 = body.newObject("PartDesign::Pocket", "Pocket019")
pocket20.Profile = sketch21
pocket20.Type = "UpToFirst"
pocket20.Reversed = True

sketch22 = body.newObject("Sketcher::SketchObject", "Sketch021")
sketch22.AttachmentSupport = (doc.getObject("XZ_Plane"), [""])
sketch22.MapMode = "FlatFace"
sketch22.addGeometry(Part.Circle(App.Vector(63.5, -167.6, 0), App.Vector(0, 0, 1), 3.4), False)
sketch22.addConstraint(Sketcher.Constraint("Diameter", 0, Q("0.27 in")))
sketch22.addConstraint(Sketcher.Constraint("DistanceX", -1, 1, 0, 3, Q("2.5 in")))
sketch22.addConstraint(Sketcher.Constraint("DistanceY", 0, 3, -1, 1, Q("6.6 in")))
sketch22.setExpression("Constraints[0]", "Params.sketch22_diameter")
pocket21 = body.newObject("PartDesign::Pocket", "Pocket020")
pocket21.Profile = sketch22
pocket21.Type = "UpToFirst"

sketch23 = body.newObject("Sketcher::SketchObject", "Sketch022")
sketch23.AttachmentSupport = (doc.getObject("XZ_Plane"), [""])
sketch23.MapMode = "FlatFace"
sketch23.addGeometry(Part.Circle(App.Vector(120.7, -139.7, 0), App.Vector(0, 0, 1), 3.4), False)
sketch23.addConstraint(Sketcher.Constraint("Diameter", 0, Q("0.27 in")))
sketch23.addConstraint(Sketcher.Constraint("DistanceY", 0, 3, -1, 1, Q("5.5 in")))
sketch23.addConstraint(Sketcher.Constraint("DistanceX", -1, 1, 0, 3, Q("4.75 in")))
sketch23.setExpression("Constraints[0]", "Params.sketch23_diameter")
pocket22 = body.newObject("PartDesign::Pocket", "Pocket021")
pocket22.Profile = sketch23
pocket22.Type = "UpToFirst"

doc.recompute()
